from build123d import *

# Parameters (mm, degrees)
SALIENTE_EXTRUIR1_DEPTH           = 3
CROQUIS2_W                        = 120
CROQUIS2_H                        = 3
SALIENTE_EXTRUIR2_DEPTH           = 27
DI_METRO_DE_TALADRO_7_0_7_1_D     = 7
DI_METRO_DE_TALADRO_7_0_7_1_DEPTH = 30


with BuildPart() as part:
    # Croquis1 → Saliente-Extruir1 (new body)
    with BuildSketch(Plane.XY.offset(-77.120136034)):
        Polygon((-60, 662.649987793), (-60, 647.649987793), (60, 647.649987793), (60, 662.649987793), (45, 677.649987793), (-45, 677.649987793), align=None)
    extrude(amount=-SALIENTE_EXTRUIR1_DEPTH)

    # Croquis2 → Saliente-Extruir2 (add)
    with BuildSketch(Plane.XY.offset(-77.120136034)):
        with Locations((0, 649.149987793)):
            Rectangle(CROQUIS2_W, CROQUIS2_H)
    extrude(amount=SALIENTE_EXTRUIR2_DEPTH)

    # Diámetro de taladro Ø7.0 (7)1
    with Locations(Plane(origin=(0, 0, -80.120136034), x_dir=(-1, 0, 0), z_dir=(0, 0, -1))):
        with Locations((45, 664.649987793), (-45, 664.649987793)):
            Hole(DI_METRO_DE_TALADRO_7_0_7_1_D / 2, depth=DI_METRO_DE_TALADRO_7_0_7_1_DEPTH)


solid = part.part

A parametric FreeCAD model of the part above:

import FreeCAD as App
import Part
import Sketcher
from FreeCAD import Vector
Q = App.Units.Quantity


def add_polygon(sketch, points):
    """Adds a closed chain of lines whose ends are joined by coincident constraints."""
    first, n = sketch.GeometryCount, len(points)
    for a, b in zip(points, points[1:] + points[:1]):
        sketch.addGeometry(Part.LineSegment(App.Vector(*a, 0), App.Vector(*b, 0)), False)
    for i in range(n):
        sketch.addConstraint(Sketcher.Constraint("Coincident", first + i, 2, first + (i + 1) % n, 1))

doc = App.newDocument("Part")
body = doc.addObject("PartDesign::Body", "Body")

# Sketch on XY plane
sketch1 = body.newObject("Sketcher::SketchObject", "Sketch")
sketch1.AttachmentSupport = (doc.getObject("XY_Plane"), [""])
sketch1.MapMode = "FlatFace"
sketch1.AttachmentOffset = App.Placement(Vector(0, 0, -77.120136), App.Rotation())
add_polygon(sketch1, [(-60, 663), (-60, 648), (60, 648), (60, 663), (45, 678), (-45, 678)])  # lines 0-5
sketch1.addConstraint([
    Sketcher.Constraint("Vertical", 0),
    Sketcher.Constraint("Horizontal", 1),
    Sketcher.Constraint("Vertical", 2),
    Sketcher.Constraint("Horizontal", 4),
    Sketcher.Constraint("Symmetric", 2, 2, 5, 2, -2),
    Sketcher.Constraint("Perpendicular", 3, 5),
    Sketcher.Constraint("Equal", 3, 5),
    Sketcher.Constraint("DistanceX", 1, 1, 1, 2, Q("120 mm")),
    Sketcher.Constraint("DistanceX", 4, 2, 4, 1, Q("90 mm")),
    Sketcher.Constraint("DistanceY", 0, 2, 0, 1, Q("15 mm")),
    Sketcher.Constraint("DistanceY", -1, 1, 0, 2, Q("647.649988 mm")),
])
pad1 = body.newObject("PartDesign::Pad", "Pad")
pad1.Profile = sketch1
pad1.Length = 3
pad1.Reversed = True

# Sketch on XY plane
sketch2 = body.newObject("Sketcher::SketchObject", "Sketch001")
sketch2.AttachmentSupport = (doc.getObject("XY_Plane"), [""])
sketch2.MapMode = "FlatFace"
sketch2.AttachmentOffset = App.Placement(Vector(0, 0, -77.120136), App.Rotation())
add_polygon(sketch2, [(-60, 650.6), (-60, 647.6), (60, 647.6), (60, 650.6)])  # lines 0-3
sketch2.addConstraint([
    Sketcher.Constraint("Vertical", 0),
    Sketcher.Constraint("Horizontal", 1),
    Sketcher.Constraint("Vertical", 2),
    Sketcher.Constraint("Horizontal", 3),
    Sketcher.Constraint("DistanceX", 1, 1, 1, 2, Q("120 mm")),
    Sketcher.Constraint("DistanceY", 0, 2, 0, 1, Q("3 mm")),
    Sketcher.Constraint("DistanceX", 0, 2, -1, 1, Q("60 mm")),
    Sketcher.Constraint("DistanceY", -1, 1, 0, 2, Q("647.649988 mm")),
])
pad2 = body.newObject("PartDesign::Pad", "Pad001")
pad2.Profile = sketch2
pad2.Length = 27

# Sketch on XY plane
sketch3 = body.newObject("Sketcher::SketchObject", "Sketch002")
sketch3.AttachmentSupport = (doc.getObject("XY_Plane"), [""])
sketch3.MapMode = "FlatFace"
sketch3.AttachmentOffset = App.Placement(Vector(0, 0, -80.120136), App.Rotation())
sketch3.addGeometry([
    Part.Circle(Vector(-45, 664.6, 0), Vector(0, 0, 1), 3.5),
    Part.Circle(Vector(45, 664.6, 0), Vector(0, 0, 1), 3.5),
], False)
sketch3.addConstraint([
    Sketcher.Constraint("Equal", 0, 1),
    Sketcher.Constraint("Symmetric", 0, 3, 1, 3, -2),
    Sketcher.Constraint("Diameter", 0, Q("7 mm")),
    Sketcher.Constraint("DistanceX", 0, 3, -1, 1, Q("45 mm")),
    Sketcher.Constraint("DistanceY", -1, 1, 0, 3, Q("664.649988 mm")),
])
doc.recompute()
hole = body.newObject("PartDesign::Hole", "Hole")
hole.Profile = sketch3
hole.ThreadType = "None"
hole.Diameter = 7
hole.DepthType = "Dimension"
hole.Depth = 30
hole.DrillPoint = "Flat"
hole.Reversed = True

doc.recompute()
